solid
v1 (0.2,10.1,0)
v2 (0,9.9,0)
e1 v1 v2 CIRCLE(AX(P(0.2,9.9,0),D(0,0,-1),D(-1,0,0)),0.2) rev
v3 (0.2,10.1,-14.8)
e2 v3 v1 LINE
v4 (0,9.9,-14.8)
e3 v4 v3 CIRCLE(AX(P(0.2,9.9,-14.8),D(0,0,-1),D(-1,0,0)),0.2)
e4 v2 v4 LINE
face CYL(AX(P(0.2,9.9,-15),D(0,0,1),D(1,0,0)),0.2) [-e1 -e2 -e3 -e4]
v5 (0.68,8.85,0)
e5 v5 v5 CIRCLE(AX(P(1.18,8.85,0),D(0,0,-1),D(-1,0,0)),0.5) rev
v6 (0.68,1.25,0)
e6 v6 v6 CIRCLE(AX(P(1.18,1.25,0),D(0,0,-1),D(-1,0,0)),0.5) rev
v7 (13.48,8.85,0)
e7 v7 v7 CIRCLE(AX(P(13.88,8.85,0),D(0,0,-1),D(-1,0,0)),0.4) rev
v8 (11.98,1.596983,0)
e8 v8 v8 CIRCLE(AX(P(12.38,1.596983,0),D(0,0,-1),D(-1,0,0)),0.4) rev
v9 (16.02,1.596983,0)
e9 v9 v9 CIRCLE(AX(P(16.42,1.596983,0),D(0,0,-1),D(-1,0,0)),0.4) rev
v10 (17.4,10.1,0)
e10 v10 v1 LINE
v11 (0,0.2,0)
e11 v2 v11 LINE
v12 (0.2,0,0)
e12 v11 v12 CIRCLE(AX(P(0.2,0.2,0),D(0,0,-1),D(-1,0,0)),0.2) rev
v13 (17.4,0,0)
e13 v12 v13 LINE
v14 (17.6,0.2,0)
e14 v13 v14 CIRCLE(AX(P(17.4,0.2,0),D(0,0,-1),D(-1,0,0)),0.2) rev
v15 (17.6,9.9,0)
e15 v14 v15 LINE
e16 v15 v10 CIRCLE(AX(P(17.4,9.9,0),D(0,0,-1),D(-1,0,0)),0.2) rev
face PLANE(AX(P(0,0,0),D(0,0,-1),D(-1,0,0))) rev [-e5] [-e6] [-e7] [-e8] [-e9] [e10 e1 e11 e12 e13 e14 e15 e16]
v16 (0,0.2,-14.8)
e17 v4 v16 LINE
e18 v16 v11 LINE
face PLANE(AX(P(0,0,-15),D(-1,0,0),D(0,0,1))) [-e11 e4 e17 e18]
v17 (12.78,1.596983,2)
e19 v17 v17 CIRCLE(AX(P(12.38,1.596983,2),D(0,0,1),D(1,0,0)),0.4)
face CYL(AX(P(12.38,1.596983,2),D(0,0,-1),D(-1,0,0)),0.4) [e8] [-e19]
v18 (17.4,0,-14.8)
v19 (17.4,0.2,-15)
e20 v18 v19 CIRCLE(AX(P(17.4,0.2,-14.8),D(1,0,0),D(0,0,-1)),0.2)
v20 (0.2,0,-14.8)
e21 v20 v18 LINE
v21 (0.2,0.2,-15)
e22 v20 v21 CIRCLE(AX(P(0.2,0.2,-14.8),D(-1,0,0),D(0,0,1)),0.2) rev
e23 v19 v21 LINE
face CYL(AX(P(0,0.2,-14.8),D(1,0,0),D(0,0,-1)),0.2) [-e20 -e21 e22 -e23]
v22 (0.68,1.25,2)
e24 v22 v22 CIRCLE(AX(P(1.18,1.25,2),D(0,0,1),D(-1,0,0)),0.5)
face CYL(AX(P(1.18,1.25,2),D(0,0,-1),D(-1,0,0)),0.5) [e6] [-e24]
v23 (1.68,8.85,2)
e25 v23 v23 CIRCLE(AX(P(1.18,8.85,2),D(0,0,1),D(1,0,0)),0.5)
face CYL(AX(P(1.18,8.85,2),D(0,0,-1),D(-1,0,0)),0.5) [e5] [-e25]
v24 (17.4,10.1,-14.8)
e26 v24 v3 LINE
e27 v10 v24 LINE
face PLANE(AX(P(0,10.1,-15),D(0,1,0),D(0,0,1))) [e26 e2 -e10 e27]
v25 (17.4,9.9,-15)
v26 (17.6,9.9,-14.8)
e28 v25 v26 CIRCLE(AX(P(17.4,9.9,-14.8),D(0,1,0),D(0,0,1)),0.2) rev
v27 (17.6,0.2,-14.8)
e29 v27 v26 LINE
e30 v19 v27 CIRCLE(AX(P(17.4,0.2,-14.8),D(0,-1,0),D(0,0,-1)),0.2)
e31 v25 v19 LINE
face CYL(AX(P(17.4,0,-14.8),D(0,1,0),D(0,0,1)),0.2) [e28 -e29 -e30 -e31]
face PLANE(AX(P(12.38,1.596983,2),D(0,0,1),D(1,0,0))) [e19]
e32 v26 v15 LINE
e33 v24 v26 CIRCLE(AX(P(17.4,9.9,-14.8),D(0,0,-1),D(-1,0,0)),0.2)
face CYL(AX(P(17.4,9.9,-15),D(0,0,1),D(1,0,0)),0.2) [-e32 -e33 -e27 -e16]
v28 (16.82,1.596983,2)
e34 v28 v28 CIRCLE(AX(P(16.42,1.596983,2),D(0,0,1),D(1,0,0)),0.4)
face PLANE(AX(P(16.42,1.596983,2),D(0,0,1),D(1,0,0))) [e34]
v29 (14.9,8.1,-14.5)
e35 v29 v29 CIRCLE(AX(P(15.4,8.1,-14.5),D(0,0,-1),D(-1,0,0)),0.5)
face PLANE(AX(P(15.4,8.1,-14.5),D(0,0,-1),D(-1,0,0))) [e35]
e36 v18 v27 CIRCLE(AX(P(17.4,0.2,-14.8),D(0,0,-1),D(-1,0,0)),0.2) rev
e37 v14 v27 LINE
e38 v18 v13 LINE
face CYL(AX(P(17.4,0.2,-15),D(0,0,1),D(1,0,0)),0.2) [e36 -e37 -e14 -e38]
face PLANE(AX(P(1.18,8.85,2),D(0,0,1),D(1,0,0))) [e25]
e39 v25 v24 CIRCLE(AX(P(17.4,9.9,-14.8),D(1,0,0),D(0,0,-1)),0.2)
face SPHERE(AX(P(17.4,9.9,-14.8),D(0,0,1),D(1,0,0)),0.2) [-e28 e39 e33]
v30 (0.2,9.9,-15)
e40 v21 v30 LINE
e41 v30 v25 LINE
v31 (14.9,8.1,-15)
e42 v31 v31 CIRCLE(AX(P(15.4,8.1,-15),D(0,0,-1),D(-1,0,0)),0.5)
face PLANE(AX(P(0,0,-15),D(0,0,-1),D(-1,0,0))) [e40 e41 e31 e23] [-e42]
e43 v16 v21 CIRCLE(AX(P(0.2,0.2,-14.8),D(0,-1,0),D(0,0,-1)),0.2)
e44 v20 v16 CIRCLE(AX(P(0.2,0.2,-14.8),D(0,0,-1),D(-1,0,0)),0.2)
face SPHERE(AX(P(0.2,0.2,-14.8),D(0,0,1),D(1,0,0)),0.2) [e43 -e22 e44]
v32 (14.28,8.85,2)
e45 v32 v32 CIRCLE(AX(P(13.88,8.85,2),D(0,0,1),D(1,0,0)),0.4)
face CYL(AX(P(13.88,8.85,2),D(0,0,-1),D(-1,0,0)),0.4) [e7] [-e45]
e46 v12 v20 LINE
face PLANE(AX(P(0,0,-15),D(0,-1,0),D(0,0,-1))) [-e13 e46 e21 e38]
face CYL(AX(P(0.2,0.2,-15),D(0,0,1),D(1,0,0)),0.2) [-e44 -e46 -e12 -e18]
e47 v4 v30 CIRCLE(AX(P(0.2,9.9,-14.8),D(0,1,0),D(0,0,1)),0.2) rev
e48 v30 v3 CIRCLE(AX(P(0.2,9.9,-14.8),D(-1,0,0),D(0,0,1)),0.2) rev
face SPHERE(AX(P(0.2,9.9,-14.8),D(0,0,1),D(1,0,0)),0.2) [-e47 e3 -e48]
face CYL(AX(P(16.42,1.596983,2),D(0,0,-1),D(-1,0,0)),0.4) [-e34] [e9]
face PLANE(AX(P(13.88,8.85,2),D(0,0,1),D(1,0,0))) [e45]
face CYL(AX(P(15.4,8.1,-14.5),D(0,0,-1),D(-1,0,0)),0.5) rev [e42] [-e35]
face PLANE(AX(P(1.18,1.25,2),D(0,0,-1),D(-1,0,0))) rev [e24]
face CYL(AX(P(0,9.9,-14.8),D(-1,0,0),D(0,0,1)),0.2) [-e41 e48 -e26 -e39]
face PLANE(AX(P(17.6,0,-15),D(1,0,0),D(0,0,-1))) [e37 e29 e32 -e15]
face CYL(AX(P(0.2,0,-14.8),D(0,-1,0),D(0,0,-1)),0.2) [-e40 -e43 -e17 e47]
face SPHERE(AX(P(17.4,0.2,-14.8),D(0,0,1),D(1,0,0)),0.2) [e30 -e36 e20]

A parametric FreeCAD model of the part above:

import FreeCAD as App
import Part
import Sketcher
from FreeCAD import Vector
Q = App.Units.Quantity


def edges_at(feature, points):
    """Names of the edges that pass closest to the given points."""
    edges = feature.Shape.Edges
    near = lambda p: min(range(len(edges)), key=lambda i: edges[i].distToShape(Part.Vertex(*p))[0])
    return sorted({f"Edge{near(p) + 1}" for p in points})

doc = App.newDocument("Part")
body = doc.addObject("PartDesign::Body", "Body")

# Sketch on XY plane
sketch1 = doc.addObject("Sketcher::SketchObject", "Sketch")
body.addObject(sketch1)
sketch1.AttachmentSupport = (doc.XY_Plane, [""])
sketch1.MapMode = "FlatFace"
sketch1.addGeometry(Part.LineSegment(Vector(0, 10.1, 0), Vector(0, 0, 0)), False)
sketch1.addGeometry(Part.LineSegment(Vector(0, 0, 0), Vector(17.6, 0, 0)), False)
sketch1.addGeometry(Part.LineSegment(Vector(17.6, 0, 0), Vector(17.6, 10.1, 0)), False)
sketch1.addGeometry(Part.LineSegment(Vector(17.6, 10.1, 0), Vector(0, 10.1, 0)), False)
sketch1.addConstraint(Sketcher.Constraint("Coincident", 0, 2, 1, 1))
sketch1.addConstraint(Sketcher.Constraint("Coincident", 1, 2, 2, 1))
sketch1.addConstraint(Sketcher.Constraint("Coincident", 2, 2, 3, 1))
sketch1.addConstraint(Sketcher.Constraint("Coincident", 3, 2, 0, 1))
sketch1.addConstraint(Sketcher.Constraint("Vertical", 0))
sketch1.addConstraint(Sketcher.Constraint("Horizontal", 1))
sketch1.addConstraint(Sketcher.Constraint("Vertical", 2))
sketch1.addConstraint(Sketcher.Constraint("Horizontal", 3))
sketch1.addConstraint(Sketcher.Constraint("Coincident", 0, 2, -1, 1))
sketch1.addConstraint(Sketcher.Constraint("DistanceX", 1, 1, 1, 2, Q("17.6 mm")))
sketch1.addConstraint(Sketcher.Constraint("DistanceY", 0, 2, 0, 1, Q("10.1 mm")))
pad1 = doc.addObject("PartDesign::Pad", "Pad")
body.addObject(pad1)
pad1.Profile = sketch1
pad1.Length = 15
pad1.Reversed = True

# Sketch on XY plane
sketch2 = doc.addObject("Sketcher::SketchObject", "Sketch001")
body.addObject(sketch2)
sketch2.AttachmentSupport = (doc.XY_Plane, [""])
sketch2.MapMode = "FlatFace"
sketch2.addGeometry(Part.Circle(Vector(1.18, 8.85, 0), Vector(0, 0, 1), 0.5), False)
sketch2.addGeometry(Part.Circle(Vector(13.88, 8.85, 0), Vector(0, 0, 1), 0.4), False)
sketch2.addGeometry(Part.Circle(Vector(12.38, 1.596983, 0), Vector(0, 0, 1), 0.4), False)
sketch2.addGeometry(Part.Circle(Vector(16.42, 1.596983, 0), Vector(0, 0, 1), 0.4), False)
sketch2.addGeometry(Part.Circle(Vector(1.18, 1.25, 0), Vector(0, 0, 1), 0.5), False)
sketch2.addConstraint(Sketcher.Constraint("Equal", 1, 2))
sketch2.addConstraint(Sketcher.Constraint("Equal", 2, 3))
sketch2.addConstraint(Sketcher.Constraint("Equal", 0, 4))
sketch2.addConstraint(Sketcher.Constraint("Horizontal", 0, 3, 1, 3))
sketch2.addConstraint(Sketcher.Constraint("Horizontal", 2, 3, 3, 3))
sketch2.addConstraint(Sketcher.Constraint("Vertical", 0, 3, 4, 3))
sketch2.addConstraint(Sketcher.Constraint("Diameter", 0, Q("1 mm")))
sketch2.addConstraint(Sketcher.Constraint("Diameter", 1, Q("0.8 mm")))
sketch2.addConstraint(Sketcher.Constraint("DistanceX", 0, 3, 1, 3, Q("12.7 mm")))
sketch2.addConstraint(Sketcher.Constraint("DistanceX", 2, 3, 1, 3, Q("1.5 mm")))
sketch2.addConstraint(Sketcher.Constraint("DistanceY", 4, 3, 0, 3, Q("7.6 mm")))
sketch2.addConstraint(Sketcher.Constraint("DistanceX", -1, 1, 0, 3, Q("1.18 mm")))
sketch2.addConstraint(Sketcher.Constraint("DistanceY", -1, 1, 0, 3, Q("8.85 mm")))
sketch2.addConstraint(Sketcher.Constraint("DistanceX", -1, 1, 3, 3, Q("16.42 mm")))
sketch2.addConstraint(Sketcher.Constraint("DistanceY", -1, 1, 2, 3, Q("1.596983 mm")))
pad2 = doc.addObject("PartDesign::Pad", "Pad001")
body.addObject(pad2)
pad2.Profile = sketch2
pad2.Length = 2
doc.recompute()

fillet = doc.addObject("PartDesign::Fillet", "Fillet")
body.addObject(fillet)
fillet.Base = (pad2, edges_at(pad2, [
    (17.6, 5.05, -15),
    (8.8, 10.1, -15),
    (0, 5.05, -15),
    (8.8, 0, -15),
    (0, 10.1, -7.5),
    (17.6, 10.1, -7.5),
    (17.6, 0, -7.5),
    (0, 0, -7.5),
]))
fillet.Radius = 0.2

# Sketch on XY plane
sketch3 = doc.addObject("Sketcher::SketchObject", "Sketch002")
body.addObject(sketch3)
sketch3.AttachmentSupport = (doc.XY_Plane, [""])
sketch3.MapMode = "FlatFace"
sketch3.AttachmentOffset = App.Placement(Vector(0, 0, -15), App.Rotation())
sketch3.addGeometry(Part.Circle(Vector(15.4, 8.1, 0), Vector(0, 0, 1), 0.5), False)
sketch3.addConstraint(Sketcher.Constraint("Diameter", 0, Q("1 mm")))
sketch3.addConstraint(Sketcher.Constraint("DistanceX", -1, 1, 0, 3, Q("15.4 mm")))
sketch3.addConstraint(Sketcher.Constraint("DistanceY", -1, 1, 0, 3, Q("8.1 mm")))
pocket1 = doc.addObject("PartDesign::Pocket", "Pocket")
body.addObject(pocket1)
pocket1.Profile = sketch3
pocket1.Length = 0.5
pocket1.Reversed = True

doc.recompute()
